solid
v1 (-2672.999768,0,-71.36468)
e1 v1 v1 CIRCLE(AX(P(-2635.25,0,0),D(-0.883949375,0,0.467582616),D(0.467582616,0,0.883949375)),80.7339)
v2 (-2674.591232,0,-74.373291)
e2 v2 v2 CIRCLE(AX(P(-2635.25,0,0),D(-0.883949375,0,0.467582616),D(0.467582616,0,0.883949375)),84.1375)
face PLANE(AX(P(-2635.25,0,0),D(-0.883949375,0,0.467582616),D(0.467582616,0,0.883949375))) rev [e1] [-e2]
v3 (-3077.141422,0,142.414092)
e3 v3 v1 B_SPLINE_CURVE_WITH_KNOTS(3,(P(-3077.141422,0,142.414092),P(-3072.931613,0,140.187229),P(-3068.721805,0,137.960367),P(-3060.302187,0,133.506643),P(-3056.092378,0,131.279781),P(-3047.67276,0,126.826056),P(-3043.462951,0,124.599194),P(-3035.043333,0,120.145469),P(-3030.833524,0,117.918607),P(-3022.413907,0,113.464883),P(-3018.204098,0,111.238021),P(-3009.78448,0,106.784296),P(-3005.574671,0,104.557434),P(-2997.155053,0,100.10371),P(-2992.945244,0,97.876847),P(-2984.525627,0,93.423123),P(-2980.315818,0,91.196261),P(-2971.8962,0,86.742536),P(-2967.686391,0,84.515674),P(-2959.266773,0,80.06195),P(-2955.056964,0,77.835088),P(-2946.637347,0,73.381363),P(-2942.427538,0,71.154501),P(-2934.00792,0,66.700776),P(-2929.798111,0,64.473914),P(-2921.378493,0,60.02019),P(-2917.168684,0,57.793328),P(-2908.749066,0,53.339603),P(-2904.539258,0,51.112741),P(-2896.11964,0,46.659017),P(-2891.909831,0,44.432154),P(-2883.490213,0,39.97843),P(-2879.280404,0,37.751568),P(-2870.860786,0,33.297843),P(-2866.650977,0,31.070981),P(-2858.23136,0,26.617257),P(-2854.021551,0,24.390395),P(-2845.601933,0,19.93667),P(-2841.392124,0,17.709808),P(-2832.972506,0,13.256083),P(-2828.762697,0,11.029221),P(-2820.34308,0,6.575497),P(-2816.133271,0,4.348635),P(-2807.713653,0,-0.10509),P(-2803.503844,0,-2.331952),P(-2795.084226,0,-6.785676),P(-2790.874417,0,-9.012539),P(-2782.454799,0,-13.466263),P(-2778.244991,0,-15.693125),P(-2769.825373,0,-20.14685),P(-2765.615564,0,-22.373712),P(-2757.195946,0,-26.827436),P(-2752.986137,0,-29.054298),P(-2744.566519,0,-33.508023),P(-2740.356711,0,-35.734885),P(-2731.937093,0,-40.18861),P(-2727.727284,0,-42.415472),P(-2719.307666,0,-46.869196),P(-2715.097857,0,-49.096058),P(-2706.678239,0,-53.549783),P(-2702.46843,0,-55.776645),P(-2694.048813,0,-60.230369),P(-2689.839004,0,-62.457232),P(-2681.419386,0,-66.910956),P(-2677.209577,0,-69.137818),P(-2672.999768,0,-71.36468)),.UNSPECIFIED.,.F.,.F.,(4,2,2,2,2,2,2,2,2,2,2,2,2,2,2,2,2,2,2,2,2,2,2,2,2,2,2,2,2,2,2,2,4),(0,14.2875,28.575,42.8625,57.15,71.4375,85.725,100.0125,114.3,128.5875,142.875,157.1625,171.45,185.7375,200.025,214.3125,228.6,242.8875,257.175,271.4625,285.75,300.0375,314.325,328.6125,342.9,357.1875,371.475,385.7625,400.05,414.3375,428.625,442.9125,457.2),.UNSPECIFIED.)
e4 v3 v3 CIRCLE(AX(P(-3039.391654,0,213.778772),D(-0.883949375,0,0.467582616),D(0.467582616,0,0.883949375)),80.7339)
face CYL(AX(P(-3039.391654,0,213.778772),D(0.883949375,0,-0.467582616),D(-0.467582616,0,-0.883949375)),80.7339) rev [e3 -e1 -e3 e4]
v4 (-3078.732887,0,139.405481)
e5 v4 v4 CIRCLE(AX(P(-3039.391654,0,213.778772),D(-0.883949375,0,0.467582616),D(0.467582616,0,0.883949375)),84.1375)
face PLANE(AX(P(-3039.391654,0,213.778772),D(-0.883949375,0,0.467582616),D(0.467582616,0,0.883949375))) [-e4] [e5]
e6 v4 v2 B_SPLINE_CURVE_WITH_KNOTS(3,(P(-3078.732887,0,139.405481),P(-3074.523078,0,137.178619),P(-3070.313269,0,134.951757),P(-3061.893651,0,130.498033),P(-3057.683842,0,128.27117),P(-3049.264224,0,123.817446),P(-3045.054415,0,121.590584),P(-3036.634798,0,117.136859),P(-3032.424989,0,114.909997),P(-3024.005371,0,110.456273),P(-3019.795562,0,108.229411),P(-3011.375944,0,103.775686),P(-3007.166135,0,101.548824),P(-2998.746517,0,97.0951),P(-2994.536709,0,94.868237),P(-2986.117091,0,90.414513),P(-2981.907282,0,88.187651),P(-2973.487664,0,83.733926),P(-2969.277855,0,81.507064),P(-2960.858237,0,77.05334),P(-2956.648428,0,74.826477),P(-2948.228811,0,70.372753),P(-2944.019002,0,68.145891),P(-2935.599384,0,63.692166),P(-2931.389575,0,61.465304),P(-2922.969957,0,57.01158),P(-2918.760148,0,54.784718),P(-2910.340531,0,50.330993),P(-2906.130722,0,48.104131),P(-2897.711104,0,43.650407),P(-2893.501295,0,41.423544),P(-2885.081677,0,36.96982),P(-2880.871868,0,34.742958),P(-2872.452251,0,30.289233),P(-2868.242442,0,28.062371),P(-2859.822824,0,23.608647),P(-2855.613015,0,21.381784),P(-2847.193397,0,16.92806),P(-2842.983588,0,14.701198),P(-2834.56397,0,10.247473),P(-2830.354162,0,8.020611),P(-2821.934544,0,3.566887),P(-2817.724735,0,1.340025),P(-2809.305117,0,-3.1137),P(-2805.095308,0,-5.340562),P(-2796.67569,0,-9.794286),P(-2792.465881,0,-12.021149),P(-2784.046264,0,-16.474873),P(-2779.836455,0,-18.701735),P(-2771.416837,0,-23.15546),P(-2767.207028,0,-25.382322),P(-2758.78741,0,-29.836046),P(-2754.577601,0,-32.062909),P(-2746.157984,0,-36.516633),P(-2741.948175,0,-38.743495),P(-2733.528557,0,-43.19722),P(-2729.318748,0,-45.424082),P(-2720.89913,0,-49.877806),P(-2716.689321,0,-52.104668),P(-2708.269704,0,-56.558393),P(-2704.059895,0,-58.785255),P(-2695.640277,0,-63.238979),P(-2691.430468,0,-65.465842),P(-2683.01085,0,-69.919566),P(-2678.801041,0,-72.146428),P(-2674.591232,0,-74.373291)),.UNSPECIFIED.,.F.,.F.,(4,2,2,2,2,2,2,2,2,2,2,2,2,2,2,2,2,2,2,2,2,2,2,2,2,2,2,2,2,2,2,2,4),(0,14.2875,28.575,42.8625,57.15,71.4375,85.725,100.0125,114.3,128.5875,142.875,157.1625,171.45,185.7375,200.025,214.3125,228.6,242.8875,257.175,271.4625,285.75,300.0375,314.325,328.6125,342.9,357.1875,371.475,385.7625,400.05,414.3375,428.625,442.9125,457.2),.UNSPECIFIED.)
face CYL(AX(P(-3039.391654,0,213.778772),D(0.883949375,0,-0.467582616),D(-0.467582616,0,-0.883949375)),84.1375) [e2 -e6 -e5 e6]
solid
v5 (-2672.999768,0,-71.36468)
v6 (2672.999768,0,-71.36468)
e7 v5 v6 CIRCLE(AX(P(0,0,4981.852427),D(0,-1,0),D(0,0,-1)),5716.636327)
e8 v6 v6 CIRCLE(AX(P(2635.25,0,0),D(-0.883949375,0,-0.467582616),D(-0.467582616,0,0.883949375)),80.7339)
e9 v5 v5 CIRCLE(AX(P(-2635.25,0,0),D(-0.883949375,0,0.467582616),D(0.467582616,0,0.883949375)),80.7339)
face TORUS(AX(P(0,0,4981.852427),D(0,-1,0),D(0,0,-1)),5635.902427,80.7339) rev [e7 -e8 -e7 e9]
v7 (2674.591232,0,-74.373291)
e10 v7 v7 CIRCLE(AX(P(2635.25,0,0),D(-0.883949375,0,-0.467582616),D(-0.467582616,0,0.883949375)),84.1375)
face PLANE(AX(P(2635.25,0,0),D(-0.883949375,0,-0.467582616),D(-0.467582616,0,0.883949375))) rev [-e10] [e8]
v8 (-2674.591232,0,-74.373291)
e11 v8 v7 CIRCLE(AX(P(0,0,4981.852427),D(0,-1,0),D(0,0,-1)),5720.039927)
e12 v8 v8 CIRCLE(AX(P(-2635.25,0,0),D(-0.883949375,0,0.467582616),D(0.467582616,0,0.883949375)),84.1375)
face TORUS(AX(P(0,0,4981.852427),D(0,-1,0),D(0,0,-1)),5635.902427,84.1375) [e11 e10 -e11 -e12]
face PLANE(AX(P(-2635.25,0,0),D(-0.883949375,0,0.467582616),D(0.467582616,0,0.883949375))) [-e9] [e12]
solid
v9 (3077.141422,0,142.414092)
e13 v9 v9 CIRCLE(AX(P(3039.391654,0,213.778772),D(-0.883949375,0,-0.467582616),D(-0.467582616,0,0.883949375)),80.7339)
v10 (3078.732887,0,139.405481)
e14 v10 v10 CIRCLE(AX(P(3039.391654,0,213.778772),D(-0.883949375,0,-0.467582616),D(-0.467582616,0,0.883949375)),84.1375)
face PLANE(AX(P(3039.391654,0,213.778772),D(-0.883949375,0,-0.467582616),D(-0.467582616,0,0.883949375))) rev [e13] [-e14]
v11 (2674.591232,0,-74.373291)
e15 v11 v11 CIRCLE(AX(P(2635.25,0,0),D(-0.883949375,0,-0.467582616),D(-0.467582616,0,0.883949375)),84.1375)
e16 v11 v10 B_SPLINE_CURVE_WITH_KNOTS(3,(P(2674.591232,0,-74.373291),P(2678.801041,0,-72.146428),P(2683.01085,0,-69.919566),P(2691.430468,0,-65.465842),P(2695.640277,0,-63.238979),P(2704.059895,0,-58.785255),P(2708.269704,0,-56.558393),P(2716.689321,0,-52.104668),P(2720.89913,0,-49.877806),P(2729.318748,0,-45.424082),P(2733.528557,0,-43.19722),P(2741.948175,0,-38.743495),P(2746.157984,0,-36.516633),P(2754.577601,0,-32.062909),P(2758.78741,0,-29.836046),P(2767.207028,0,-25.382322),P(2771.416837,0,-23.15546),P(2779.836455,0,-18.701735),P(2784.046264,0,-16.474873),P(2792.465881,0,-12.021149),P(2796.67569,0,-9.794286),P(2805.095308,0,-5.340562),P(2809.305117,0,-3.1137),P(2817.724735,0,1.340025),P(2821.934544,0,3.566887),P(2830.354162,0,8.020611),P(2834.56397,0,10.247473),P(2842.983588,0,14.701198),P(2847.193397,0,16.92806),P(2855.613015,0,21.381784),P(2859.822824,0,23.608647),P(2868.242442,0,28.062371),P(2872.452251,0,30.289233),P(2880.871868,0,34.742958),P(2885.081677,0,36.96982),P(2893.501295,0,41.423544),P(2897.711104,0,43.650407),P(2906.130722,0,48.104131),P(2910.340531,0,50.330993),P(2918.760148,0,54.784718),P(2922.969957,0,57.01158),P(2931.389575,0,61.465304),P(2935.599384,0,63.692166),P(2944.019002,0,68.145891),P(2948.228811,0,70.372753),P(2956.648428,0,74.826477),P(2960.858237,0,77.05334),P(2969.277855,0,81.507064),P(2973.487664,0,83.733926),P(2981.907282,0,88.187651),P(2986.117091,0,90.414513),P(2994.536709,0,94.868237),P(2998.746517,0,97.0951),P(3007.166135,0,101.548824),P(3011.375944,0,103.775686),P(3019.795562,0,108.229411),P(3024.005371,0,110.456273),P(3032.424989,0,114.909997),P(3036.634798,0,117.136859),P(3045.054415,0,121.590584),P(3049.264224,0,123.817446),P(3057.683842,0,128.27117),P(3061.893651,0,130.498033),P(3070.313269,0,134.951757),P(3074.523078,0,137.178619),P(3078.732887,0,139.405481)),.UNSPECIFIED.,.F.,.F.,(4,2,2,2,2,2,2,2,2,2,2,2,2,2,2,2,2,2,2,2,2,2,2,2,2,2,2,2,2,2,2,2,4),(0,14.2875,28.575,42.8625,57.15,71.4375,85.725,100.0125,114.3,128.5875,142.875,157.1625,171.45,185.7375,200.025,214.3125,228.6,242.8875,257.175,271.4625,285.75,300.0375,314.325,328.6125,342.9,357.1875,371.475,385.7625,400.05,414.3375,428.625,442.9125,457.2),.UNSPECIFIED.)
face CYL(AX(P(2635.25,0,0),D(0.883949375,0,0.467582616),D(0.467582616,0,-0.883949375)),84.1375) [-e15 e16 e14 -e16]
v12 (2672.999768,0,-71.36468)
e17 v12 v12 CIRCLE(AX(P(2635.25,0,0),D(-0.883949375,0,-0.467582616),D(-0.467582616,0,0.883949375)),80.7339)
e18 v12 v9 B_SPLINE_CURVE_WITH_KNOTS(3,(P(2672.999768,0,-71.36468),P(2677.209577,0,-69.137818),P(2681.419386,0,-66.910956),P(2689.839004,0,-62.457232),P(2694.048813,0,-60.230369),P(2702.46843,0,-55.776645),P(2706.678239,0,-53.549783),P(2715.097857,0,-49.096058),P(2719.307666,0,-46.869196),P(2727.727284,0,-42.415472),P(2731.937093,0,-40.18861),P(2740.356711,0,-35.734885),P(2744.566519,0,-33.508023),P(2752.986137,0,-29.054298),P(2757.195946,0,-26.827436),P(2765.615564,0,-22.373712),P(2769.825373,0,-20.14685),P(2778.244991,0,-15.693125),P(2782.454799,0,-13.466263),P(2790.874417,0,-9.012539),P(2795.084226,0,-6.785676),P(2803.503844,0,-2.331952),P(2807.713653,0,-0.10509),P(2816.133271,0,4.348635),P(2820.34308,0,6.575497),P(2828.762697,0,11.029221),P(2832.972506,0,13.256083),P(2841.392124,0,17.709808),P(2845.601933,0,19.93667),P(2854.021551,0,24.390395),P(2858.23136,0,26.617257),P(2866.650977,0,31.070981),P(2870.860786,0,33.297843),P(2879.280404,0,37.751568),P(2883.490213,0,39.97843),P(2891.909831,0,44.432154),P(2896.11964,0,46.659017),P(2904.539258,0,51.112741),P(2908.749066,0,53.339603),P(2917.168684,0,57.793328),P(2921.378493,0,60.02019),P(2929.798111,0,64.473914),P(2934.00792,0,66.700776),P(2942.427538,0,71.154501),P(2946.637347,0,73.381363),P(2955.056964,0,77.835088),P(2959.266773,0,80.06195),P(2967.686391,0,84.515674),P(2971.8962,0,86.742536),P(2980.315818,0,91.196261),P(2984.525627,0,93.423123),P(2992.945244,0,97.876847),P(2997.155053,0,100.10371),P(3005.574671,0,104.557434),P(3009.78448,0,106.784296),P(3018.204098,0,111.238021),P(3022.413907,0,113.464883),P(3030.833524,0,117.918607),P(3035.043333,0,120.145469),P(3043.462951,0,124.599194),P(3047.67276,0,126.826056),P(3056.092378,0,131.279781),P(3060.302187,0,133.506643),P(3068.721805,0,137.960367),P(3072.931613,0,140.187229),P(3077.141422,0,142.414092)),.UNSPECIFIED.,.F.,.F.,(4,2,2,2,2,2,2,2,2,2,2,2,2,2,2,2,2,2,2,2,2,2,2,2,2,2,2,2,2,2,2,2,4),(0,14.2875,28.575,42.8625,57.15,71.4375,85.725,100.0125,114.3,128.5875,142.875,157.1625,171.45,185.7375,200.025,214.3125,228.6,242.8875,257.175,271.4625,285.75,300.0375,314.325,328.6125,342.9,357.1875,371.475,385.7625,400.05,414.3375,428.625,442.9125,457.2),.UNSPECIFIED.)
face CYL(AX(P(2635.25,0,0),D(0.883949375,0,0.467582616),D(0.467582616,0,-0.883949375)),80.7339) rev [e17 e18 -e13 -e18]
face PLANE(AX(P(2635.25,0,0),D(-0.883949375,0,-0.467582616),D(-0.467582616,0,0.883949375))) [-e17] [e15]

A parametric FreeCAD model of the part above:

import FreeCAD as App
import Part
import Sketcher
Q = App.Units.Quantity

doc = App.newDocument("Part")
body = doc.addObject("PartDesign::Body", "Body")

# Sketch on an angled plane
sketch1 = body.newObject("Sketcher::SketchObject", "Sketch")
sketch1.Placement = App.Placement(App.Vector(2635.25, 0, 0), App.Rotation(App.Vector(-0.467582616, 0, 0.883949375), App.Vector(0, 1, 0), App.Vector(-0.883949375, 0, -0.467582616), "ZXY"))
sketch1.addGeometry([
    Part.Circle(App.Vector(0, 0, 0), App.Vector(0, 0, 1), 84.1375),
    Part.Circle(App.Vector(0, 0, 0), App.Vector(0, 0, 1), 80.7339),
], False)
sketch1.addConstraint([
    Sketcher.Constraint("Coincident", 0, 3, -1, 1),
    Sketcher.Constraint("Coincident", 1, 3, -1, 1),
    Sketcher.Constraint("Diameter", 0, Q("6.625 in")),
    Sketcher.Constraint("Diameter", 1, Q("6.357 in")),
])
pad1 = body.newObject("PartDesign::Pad", "Pad")
pad1.Profile = sketch1
pad1.Length = Q("18 in")
pad1.Reversed = True
body2 = doc.addObject("PartDesign::Body", "Body001")

# Sketch on an angled plane
sketch2 = body2.newObject("Sketcher::SketchObject", "Sketch001")
sketch2.Placement = App.Placement(App.Vector(2635.25, 0, 0), App.Rotation(App.Vector(0.467582616, 0, -0.883949375), App.Vector(0, 1, 0), App.Vector(0.883949375, 0, 0.467582616), "ZXY"))
sketch2.addGeometry([
    Part.Circle(App.Vector(0, 0, 0), App.Vector(0, 0, 1), 84.1375),
    Part.Circle(App.Vector(0, 0, 0), App.Vector(0, 0, 1), 80.7339),
], False)
sketch2.addGeometry(Part.LineSegment(App.Vector(-5635.902428, 0, 0), App.Vector(-5635.902428, 10, 0)), True)  # axis
sketch2.addConstraint([
    Sketcher.Constraint("Vertical", 2),
    Sketcher.Constraint("Coincident", 0, 3, -1, 1),
    Sketcher.Constraint("Coincident", 1, 3, -1, 1),
    Sketcher.Constraint("PointOnObject", 2, 1, -1),
    Sketcher.Constraint("Diameter", 0, Q("6.625 in")),
    Sketcher.Constraint("Diameter", 1, Q("6.357 in")),
    Sketcher.Constraint("DistanceY", 2, 1, 2, 2, Q("10 mm")),
    Sketcher.Constraint("DistanceX", 2, 1, -1, 1, Q("5635.902428 mm")),
])
revolution = body2.newObject("PartDesign::Revolution", "Revolution")
revolution.Profile = sketch2
revolution.ReferenceAxis = (sketch2, ["Axis0"])
revolution.Angle = 55.754986
body3 = doc.addObject("PartDesign::Body", "Body002")

# Sketch on an angled plane
sketch3 = body3.newObject("Sketcher::SketchObject", "Sketch002")
sketch3.Placement = App.Placement(App.Vector(-3039.391654, 0, 213.778772), App.Rotation(App.Vector(-0.467582616, 0, -0.883949375), App.Vector(0, 1, 0), App.Vector(0.883949375, 0, -0.467582616), "ZXY"))
sketch3.addGeometry([
    Part.Circle(App.Vector(0, 0, 0), App.Vector(0, 0, 1), 84.1375),
    Part.Circle(App.Vector(0, 0, 0), App.Vector(0, 0, 1), 80.7339),
], False)
sketch3.addConstraint([
    Sketcher.Constraint("Coincident", 0, 3, -1, 1),
    Sketcher.Constraint("Coincident", 1, 3, -1, 1),
    Sketcher.Constraint("Diameter", 0, Q("6.625 in")),
    Sketcher.Constraint("Diameter", 1, Q("6.357 in")),
])
pad2 = body3.newObject("PartDesign::Pad", "Pad001")
pad2.Profile = sketch3
pad2.Length = Q("18 in")

doc.recompute()
